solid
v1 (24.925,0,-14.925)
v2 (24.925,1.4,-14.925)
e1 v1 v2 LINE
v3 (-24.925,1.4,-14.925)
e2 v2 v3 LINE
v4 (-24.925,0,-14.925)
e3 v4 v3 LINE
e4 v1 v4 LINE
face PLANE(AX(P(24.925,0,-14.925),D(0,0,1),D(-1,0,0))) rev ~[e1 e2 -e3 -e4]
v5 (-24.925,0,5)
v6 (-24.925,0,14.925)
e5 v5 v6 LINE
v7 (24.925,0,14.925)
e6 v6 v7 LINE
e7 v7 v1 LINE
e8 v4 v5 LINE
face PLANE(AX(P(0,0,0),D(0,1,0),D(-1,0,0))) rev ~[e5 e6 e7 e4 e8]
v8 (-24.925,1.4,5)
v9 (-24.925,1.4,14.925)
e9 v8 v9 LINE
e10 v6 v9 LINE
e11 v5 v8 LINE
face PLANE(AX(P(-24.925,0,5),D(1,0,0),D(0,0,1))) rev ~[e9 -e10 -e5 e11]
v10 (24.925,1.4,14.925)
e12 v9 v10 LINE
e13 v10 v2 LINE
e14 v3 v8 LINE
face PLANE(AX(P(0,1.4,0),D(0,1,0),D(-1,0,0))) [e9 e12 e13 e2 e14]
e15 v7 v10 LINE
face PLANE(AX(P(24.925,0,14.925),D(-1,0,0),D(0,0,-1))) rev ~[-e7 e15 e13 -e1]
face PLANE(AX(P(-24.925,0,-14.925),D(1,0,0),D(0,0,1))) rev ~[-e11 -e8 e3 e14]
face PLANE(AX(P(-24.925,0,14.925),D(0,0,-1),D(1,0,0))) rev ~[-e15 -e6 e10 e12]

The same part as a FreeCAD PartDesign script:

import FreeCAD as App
import Part
import Sketcher

V = App.Vector
Q = App.Units.Quantity


def add_polygon(sketch, points):
    """Adds a closed chain of lines whose ends are joined by coincident constraints."""
    first, n = sketch.GeometryCount, len(points)
    for a, b in zip(points, points[1:] + points[:1]):
        sketch.addGeometry(Part.LineSegment(App.Vector(*a, 0), App.Vector(*b, 0)), False)
    for i in range(n):
        sketch.addConstraint(Sketcher.Constraint("Coincident", first + i, 2, first + (i + 1) % n, 1))

doc = App.newDocument("Part")
body = doc.addObject("PartDesign::Body", "Body")

# Sketch on XZ plane
sketch1 = body.newObject("Sketcher::SketchObject", "Sketch")
sketch1.AttachmentSupport = (doc.getObject("XZ_Plane"), [""])
sketch1.MapMode = "FlatFace"
add_polygon(sketch1, [(-25, -15), (-25, 15), (25, 15), (25, -15)])  # lines 0-3
sketch1.addConstraint(Sketcher.Constraint("Vertical", 0))
sketch1.addConstraint(Sketcher.Constraint("Horizontal", 1))
sketch1.addConstraint(Sketcher.Constraint("Vertical", 2))
sketch1.addConstraint(Sketcher.Constraint("Horizontal", 3))
sketch1.addConstraint(Sketcher.Constraint("Symmetric", 0, 2, 2, 2, -1, 1))
sketch1.addConstraint(Sketcher.Constraint("DistanceX", 1, 1, 1, 2, Q("49.85 mm")))
sketch1.addConstraint(Sketcher.Constraint("DistanceY", 0, 1, 0, 2, Q("29.85 mm")))
pad1 = body.newObject("PartDesign::Pad", "Pad")
pad1.Profile = sketch1
pad1.Length = 1.4
pad1.Reversed = True

doc.recompute()
